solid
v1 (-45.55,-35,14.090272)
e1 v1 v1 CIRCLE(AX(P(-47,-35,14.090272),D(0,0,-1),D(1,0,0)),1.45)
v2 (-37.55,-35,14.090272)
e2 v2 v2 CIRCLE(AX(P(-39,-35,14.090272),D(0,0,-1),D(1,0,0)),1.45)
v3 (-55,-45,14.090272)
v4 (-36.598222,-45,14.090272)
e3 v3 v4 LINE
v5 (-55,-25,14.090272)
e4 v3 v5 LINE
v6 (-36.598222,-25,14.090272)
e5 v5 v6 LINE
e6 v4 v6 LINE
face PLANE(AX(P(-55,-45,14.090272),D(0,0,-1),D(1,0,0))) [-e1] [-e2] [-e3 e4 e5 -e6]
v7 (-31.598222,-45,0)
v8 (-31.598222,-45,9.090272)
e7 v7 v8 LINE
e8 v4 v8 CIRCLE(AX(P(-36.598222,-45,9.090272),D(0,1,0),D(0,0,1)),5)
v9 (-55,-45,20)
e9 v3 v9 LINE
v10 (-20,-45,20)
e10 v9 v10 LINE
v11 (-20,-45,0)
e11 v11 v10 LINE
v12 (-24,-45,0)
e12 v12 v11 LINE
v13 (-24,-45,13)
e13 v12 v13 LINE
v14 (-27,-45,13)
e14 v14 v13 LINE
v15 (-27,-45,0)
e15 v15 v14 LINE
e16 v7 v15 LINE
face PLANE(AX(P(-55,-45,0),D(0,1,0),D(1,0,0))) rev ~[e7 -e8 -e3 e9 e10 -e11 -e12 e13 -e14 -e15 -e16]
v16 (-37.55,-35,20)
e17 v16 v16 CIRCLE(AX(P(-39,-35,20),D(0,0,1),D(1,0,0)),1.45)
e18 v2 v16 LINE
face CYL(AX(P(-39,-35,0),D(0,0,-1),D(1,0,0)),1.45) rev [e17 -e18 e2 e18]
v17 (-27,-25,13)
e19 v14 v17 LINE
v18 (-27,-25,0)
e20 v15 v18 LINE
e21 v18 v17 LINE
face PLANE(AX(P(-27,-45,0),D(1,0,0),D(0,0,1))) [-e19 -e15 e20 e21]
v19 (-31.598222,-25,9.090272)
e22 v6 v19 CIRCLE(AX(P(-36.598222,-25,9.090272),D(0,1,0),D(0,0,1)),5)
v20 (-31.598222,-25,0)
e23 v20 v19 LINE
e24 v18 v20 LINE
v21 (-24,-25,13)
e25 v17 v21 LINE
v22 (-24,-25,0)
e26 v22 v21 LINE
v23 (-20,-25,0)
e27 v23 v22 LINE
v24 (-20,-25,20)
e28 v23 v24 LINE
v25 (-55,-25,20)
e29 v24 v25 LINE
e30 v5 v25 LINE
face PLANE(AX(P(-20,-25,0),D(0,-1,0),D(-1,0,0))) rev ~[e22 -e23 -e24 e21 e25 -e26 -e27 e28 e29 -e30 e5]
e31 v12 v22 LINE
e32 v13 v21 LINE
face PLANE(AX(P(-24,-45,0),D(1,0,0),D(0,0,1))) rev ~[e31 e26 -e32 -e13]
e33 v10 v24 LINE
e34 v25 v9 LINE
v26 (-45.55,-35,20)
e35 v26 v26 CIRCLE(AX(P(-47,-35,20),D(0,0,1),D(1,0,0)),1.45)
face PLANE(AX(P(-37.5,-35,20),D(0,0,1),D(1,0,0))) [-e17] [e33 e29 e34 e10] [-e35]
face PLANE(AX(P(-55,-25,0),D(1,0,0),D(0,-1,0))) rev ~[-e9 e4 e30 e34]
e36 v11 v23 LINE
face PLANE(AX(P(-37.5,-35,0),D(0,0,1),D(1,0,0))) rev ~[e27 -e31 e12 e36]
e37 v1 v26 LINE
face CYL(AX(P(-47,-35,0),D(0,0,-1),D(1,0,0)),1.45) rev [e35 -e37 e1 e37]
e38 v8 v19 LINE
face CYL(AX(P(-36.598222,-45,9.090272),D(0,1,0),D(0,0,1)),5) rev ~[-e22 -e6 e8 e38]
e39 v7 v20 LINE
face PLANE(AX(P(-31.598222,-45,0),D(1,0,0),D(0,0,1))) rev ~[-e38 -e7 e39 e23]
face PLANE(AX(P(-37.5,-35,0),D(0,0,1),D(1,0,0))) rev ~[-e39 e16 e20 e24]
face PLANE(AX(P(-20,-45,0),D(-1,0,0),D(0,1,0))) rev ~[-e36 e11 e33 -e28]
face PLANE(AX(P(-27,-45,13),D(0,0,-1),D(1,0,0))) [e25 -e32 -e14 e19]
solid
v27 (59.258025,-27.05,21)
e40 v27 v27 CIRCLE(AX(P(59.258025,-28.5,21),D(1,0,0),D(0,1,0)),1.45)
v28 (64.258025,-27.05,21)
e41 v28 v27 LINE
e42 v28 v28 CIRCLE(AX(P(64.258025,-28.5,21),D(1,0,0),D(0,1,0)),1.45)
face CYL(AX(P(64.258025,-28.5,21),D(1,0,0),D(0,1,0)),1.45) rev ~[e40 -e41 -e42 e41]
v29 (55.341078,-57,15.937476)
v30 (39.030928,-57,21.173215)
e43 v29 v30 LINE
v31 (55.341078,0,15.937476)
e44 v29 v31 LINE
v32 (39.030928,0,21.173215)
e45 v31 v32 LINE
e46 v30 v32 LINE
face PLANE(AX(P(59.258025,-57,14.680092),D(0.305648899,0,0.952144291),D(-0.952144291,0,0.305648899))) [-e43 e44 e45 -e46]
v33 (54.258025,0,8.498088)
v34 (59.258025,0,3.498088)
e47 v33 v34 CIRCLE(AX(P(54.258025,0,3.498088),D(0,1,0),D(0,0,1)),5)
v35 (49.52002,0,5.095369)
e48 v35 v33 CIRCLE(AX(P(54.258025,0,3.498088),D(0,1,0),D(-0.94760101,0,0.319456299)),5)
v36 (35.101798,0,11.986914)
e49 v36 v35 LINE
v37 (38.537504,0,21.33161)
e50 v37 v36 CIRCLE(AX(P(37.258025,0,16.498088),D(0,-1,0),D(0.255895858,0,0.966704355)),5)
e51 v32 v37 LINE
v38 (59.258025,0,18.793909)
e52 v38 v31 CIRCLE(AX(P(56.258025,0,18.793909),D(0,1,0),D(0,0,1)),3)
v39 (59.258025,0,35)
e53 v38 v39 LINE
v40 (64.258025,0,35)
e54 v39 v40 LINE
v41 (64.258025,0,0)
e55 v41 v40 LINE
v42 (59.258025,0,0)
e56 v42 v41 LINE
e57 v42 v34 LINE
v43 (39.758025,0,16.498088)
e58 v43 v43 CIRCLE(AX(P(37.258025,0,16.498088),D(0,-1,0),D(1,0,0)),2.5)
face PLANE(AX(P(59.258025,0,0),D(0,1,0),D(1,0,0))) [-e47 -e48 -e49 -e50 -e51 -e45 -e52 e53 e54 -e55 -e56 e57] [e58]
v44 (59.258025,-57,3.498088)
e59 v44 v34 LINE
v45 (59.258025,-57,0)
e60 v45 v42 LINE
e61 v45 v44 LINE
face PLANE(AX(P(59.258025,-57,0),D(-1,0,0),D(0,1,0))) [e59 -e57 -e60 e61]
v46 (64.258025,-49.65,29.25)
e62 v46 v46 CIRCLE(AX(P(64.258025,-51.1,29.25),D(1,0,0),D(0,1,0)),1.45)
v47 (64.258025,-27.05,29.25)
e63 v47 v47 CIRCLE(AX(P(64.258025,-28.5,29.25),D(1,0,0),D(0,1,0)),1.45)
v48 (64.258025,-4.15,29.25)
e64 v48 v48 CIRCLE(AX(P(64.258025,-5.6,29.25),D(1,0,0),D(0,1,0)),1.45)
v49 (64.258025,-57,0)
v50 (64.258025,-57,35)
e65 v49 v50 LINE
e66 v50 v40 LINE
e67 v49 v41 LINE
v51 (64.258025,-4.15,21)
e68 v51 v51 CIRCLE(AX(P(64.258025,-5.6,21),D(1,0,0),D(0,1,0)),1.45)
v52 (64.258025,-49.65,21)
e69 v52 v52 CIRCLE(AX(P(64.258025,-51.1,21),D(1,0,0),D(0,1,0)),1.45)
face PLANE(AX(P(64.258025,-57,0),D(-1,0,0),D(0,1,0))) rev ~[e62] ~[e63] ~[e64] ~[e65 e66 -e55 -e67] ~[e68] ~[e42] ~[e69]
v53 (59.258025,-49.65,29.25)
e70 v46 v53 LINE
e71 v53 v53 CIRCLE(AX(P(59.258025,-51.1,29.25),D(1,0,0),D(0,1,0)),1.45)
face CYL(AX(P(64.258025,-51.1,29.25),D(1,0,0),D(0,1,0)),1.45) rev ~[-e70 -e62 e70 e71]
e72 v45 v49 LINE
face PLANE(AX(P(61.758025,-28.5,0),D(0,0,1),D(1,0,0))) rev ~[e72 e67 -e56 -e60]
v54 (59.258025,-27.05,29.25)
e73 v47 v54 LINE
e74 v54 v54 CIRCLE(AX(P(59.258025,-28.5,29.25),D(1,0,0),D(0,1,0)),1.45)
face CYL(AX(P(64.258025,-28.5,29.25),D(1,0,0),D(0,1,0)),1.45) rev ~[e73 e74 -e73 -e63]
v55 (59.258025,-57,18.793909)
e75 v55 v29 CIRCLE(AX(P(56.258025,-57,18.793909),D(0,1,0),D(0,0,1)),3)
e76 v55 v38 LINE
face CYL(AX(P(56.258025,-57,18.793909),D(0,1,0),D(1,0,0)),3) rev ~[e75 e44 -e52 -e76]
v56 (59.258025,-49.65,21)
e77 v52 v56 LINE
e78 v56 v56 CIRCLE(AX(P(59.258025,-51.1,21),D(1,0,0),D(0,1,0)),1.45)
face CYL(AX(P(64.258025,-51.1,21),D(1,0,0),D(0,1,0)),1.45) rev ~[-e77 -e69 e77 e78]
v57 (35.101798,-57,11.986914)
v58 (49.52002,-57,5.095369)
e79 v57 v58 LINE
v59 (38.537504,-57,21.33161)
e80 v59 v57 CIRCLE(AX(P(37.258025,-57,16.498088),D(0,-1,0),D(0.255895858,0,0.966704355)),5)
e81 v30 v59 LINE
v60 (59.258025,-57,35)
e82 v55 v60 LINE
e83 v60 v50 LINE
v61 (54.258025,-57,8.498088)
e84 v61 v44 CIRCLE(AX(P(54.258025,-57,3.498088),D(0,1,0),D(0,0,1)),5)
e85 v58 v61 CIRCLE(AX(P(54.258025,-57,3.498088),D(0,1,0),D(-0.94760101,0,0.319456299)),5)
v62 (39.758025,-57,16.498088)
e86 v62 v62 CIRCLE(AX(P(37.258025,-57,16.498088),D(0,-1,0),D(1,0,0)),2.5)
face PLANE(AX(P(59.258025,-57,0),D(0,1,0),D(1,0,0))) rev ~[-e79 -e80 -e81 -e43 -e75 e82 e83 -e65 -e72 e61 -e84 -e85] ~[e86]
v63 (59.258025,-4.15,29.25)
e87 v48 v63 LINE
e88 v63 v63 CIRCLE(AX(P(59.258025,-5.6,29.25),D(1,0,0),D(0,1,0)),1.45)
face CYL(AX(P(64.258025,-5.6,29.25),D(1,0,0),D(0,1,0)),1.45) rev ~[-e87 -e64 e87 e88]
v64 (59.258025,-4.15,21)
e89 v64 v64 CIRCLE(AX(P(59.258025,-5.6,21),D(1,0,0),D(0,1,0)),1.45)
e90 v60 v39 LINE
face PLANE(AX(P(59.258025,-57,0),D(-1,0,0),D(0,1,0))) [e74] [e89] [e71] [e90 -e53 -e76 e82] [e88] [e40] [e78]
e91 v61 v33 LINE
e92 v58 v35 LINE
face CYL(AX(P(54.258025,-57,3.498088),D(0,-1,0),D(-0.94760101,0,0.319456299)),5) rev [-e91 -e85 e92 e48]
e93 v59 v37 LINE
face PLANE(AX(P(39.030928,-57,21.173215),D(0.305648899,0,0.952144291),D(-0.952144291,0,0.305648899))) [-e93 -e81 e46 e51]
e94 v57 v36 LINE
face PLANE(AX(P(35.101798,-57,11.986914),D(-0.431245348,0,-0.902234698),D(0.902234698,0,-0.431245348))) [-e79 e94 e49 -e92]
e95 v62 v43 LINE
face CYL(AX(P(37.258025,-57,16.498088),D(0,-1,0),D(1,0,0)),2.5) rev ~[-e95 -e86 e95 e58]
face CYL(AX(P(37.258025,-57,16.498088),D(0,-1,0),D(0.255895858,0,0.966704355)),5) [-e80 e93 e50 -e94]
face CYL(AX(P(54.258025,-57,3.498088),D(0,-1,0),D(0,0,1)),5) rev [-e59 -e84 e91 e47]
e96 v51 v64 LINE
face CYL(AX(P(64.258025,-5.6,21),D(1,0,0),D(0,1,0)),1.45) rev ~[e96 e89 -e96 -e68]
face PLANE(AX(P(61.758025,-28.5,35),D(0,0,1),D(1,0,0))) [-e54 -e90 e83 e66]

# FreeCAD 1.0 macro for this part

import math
import FreeCAD as App
import Part
import Sketcher

V = App.Vector


def edges_at(feature, points):
    """Names of the edges that pass closest to the given points."""
    edges = feature.Shape.Edges
    near = lambda p: min(range(len(edges)), key=lambda i: edges[i].distToShape(Part.Vertex(*p))[0])
    return sorted({f"Edge{near(p) + 1}" for p in points})

doc = App.newDocument("Part")
body = doc.addObject("PartDesign::Body", "Body")

sketch1 = doc.addObject("Sketcher::SketchObject", "Sketch")
body.addObject(sketch1)
sketch1.AttachmentSupport = (doc.XY_Plane, [""])
sketch1.MapMode = "FlatFace"
sketch1.addGeometry(Part.LineSegment(V(-55, -25, 0), V(-55, -45, 0)), False)
sketch1.addGeometry(Part.LineSegment(V(-55, -45, 0), V(-20, -45, 0)), False)
sketch1.addGeometry(Part.LineSegment(V(-20, -45, 0), V(-20, -25, 0)), False)
sketch1.addGeometry(Part.LineSegment(V(-20, -25, 0), V(-55, -25, 0)), False)
sketch1.addGeometry(Part.Circle(V(-47, -35, 0), V(0, 0, 1), 1.4), False)
sketch1.addGeometry(Part.Circle(V(-39, -35, 0), V(0, 0, 1), 1.4), False)
sketch1.addConstraint(Sketcher.Constraint("Coincident", 0, 2, 1, 1))
sketch1.addConstraint(Sketcher.Constraint("Coincident", 1, 2, 2, 1))
sketch1.addConstraint(Sketcher.Constraint("Coincident", 2, 2, 3, 1))
sketch1.addConstraint(Sketcher.Constraint("Coincident", 3, 2, 0, 1))
sketch1.addConstraint(Sketcher.Constraint("Vertical", 0))
sketch1.addConstraint(Sketcher.Constraint("Horizontal", 1))
sketch1.addConstraint(Sketcher.Constraint("Vertical", 2))
sketch1.addConstraint(Sketcher.Constraint("Horizontal", 3))
sketch1.addConstraint(Sketcher.Constraint("Equal", 4, 5))
sketch1.addConstraint(Sketcher.Constraint("Horizontal", 4, 3, 5, 3))
sketch1.addConstraint(Sketcher.Constraint("Diameter", 4, 2.9))
sketch1.addConstraint(Sketcher.Constraint("DistanceX", 1, 1, 1, 2, 35.0))
sketch1.addConstraint(Sketcher.Constraint("DistanceY", 0, 2, 0, 1, 20.0))
sketch1.addConstraint(Sketcher.Constraint("DistanceX", 4, 3, -1, 1, 47.0))
sketch1.addConstraint(Sketcher.Constraint("DistanceY", 4, 3, -1, 1, 35.0))
sketch1.addConstraint(Sketcher.Constraint("DistanceX", 5, 3, -1, 1, 39.0))
sketch1.addConstraint(Sketcher.Constraint("DistanceX", 0, 2, -1, 1, 55.0))
sketch1.addConstraint(Sketcher.Constraint("DistanceY", 0, 2, -1, 1, 45.0))
pad1 = doc.addObject("PartDesign::Pad", "Pad")
body.addObject(pad1)
pad1.Profile = sketch1
pad1.Length = 20

sketch2 = doc.addObject("Sketcher::SketchObject", "Sketch001")
body.addObject(sketch2)
sketch2.AttachmentSupport = (doc.XZ_Plane, [""])
sketch2.MapMode = "FlatFace"
sketch2.AttachmentOffset = App.Placement(V(0, 0, 45), App.Rotation())
sketch2.addGeometry(Part.LineSegment(V(-27, 13, 0), V(-27, 0, 0)), False)
sketch2.addGeometry(Part.LineSegment(V(-27, 0, 0), V(-24, 0, 0)), False)
sketch2.addGeometry(Part.LineSegment(V(-24, 0, 0), V(-24, 13, 0)), False)
sketch2.addGeometry(Part.LineSegment(V(-24, 13, 0), V(-27, 13, 0)), False)
sketch2.addGeometry(Part.LineSegment(V(-55, 14.1, 0), V(-55, 0, 0)), False)
sketch2.addGeometry(Part.LineSegment(V(-55, 0, 0), V(-31.6, 0, 0)), False)
sketch2.addGeometry(Part.LineSegment(V(-31.6, 0, 0), V(-31.6, 14.1, 0)), False)
sketch2.addGeometry(Part.LineSegment(V(-31.6, 14.1, 0), V(-55, 14.1, 0)), False)
sketch2.addConstraint(Sketcher.Constraint("Coincident", 0, 2, 1, 1))
sketch2.addConstraint(Sketcher.Constraint("Coincident", 1, 2, 2, 1))
sketch2.addConstraint(Sketcher.Constraint("Coincident", 2, 2, 3, 1))
sketch2.addConstraint(Sketcher.Constraint("Coincident", 3, 2, 0, 1))
sketch2.addConstraint(Sketcher.Constraint("Coincident", 4, 2, 5, 1))
sketch2.addConstraint(Sketcher.Constraint("Coincident", 5, 2, 6, 1))
sketch2.addConstraint(Sketcher.Constraint("Coincident", 6, 2, 7, 1))
sketch2.addConstraint(Sketcher.Constraint("Coincident", 7, 2, 4, 1))
sketch2.addConstraint(Sketcher.Constraint("Vertical", 0))
sketch2.addConstraint(Sketcher.Constraint("Horizontal", 1))
sketch2.addConstraint(Sketcher.Constraint("Vertical", 2))
sketch2.addConstraint(Sketcher.Constraint("Horizontal", 3))
sketch2.addConstraint(Sketcher.Constraint("Vertical", 4))
sketch2.addConstraint(Sketcher.Constraint("Horizontal", 5))
sketch2.addConstraint(Sketcher.Constraint("Vertical", 6))
sketch2.addConstraint(Sketcher.Constraint("Horizontal", 7))
sketch2.addConstraint(Sketcher.Constraint("PointOnObject", 0, 2, -1))
sketch2.addConstraint(Sketcher.Constraint("PointOnObject", 4, 2, -1))
sketch2.addConstraint(Sketcher.Constraint("DistanceX", 1, 1, 1, 2, 3.0))
sketch2.addConstraint(Sketcher.Constraint("DistanceY", 0, 2, 0, 1, 13.0))
sketch2.addConstraint(Sketcher.Constraint("DistanceX", 0, 2, -1, 1, 27.0))
sketch2.addConstraint(Sketcher.Constraint("DistanceX", 4, 2, -1, 1, 55.0))
sketch2.addConstraint(Sketcher.Constraint("DistanceX", 5, 1, 5, 2, 23.401778))
sketch2.addConstraint(Sketcher.Constraint("DistanceY", 4, 2, 4, 1, 14.090272))
pocket1 = doc.addObject("PartDesign::Pocket", "Pocket")
body.addObject(pocket1)
pocket1.Profile = sketch2
pocket1.Length = 25
doc.recompute()

fillet = doc.addObject("PartDesign::Fillet", "Fillet")
body.addObject(fillet)
fillet.Base = (pocket1, edges_at(pocket1, [(-31.598, -35, 14.09)]))
fillet.Radius = 5
body2 = doc.addObject("PartDesign::Body", "Body001")

sketch3 = doc.addObject("Sketcher::SketchObject", "Sketch002")
body2.addObject(sketch3)
sketch3.AttachmentSupport = (doc.getObject("XY_Plane001"), [""])
sketch3.MapMode = "FlatFace"
sketch3.addGeometry(Part.LineSegment(V(59, 0, 0), V(59, -57, 0)), False)
sketch3.addGeometry(Part.LineSegment(V(59, -57, 0), V(64, -57, 0)), False)
sketch3.addGeometry(Part.LineSegment(V(64, -57, 0), V(64, 0, 0)), False)
sketch3.addGeometry(Part.LineSegment(V(64, 0, 0), V(59, 0, 0)), False)
sketch3.addConstraint(Sketcher.Constraint("Coincident", 0, 2, 1, 1))
sketch3.addConstraint(Sketcher.Constraint("Coincident", 1, 2, 2, 1))
sketch3.addConstraint(Sketcher.Constraint("Coincident", 2, 2, 3, 1))
sketch3.addConstraint(Sketcher.Constraint("Coincident", 3, 2, 0, 1))
sketch3.addConstraint(Sketcher.Constraint("Vertical", 0))
sketch3.addConstraint(Sketcher.Constraint("Horizontal", 1))
sketch3.addConstraint(Sketcher.Constraint("Vertical", 2))
sketch3.addConstraint(Sketcher.Constraint("Horizontal", 3))
sketch3.addConstraint(Sketcher.Constraint("PointOnObject", 2, 2, -1))
sketch3.addConstraint(Sketcher.Constraint("DistanceX", 1, 1, 1, 2, 5.0))
sketch3.addConstraint(Sketcher.Constraint("DistanceY", 0, 2, 0, 1, 57.0))
sketch3.addConstraint(Sketcher.Constraint("DistanceX", -1, 1, 0, 2, 59.258025))
pad2 = doc.addObject("PartDesign::Pad", "Pad001")
body2.addObject(pad2)
pad2.Profile = sketch3
pad2.Length = 35

sketch4 = doc.addObject("Sketcher::SketchObject", "Sketch003")
body2.addObject(sketch4)
sketch4.AttachmentSupport = (doc.getObject("YZ_Plane001"), [""])
sketch4.MapMode = "FlatFace"
sketch4.AttachmentOffset = App.Placement(V(0, 0, 64.258025), App.Rotation())
sketch4.addGeometry(Part.Circle(V(-28.5, 21, 0), V(0, 0, 1), 1.4), False)
sketch4.addGeometry(Part.Circle(V(-28.5, 29.2, 0), V(0, 0, 1), 1.4), False)
sketch4.addGeometry(Part.Circle(V(-5.6, 29.2, 0), V(0, 0, 1), 1.4), False)
sketch4.addGeometry(Part.Circle(V(-5.6, 21, 0), V(0, 0, 1), 1.4), False)
sketch4.addGeometry(Part.Circle(V(-51.1, 29.2, 0), V(0, 0, 1), 1.4), False)
sketch4.addGeometry(Part.Circle(V(-51.1, 21, 0), V(0, 0, 1), 1.4), False)
sketch4.addConstraint(Sketcher.Constraint("Equal", 0, 1))
sketch4.addConstraint(Sketcher.Constraint("Equal", 1, 2))
sketch4.addConstraint(Sketcher.Constraint("Equal", 2, 3))
sketch4.addConstraint(Sketcher.Constraint("Equal", 3, 4))
sketch4.addConstraint(Sketcher.Constraint("Equal", 4, 5))
sketch4.addConstraint(Sketcher.Constraint("Horizontal", 1, 3, 2, 3))
sketch4.addConstraint(Sketcher.Constraint("Horizontal", 0, 3, 3, 3))
sketch4.addConstraint(Sketcher.Constraint("Horizontal", 2, 3, 4, 3))
sketch4.addConstraint(Sketcher.Constraint("Horizontal", 3, 3, 5, 3))
sketch4.addConstraint(Sketcher.Constraint("Vertical", 0, 3, 1, 3))
sketch4.addConstraint(Sketcher.Constraint("Vertical", 2, 3, 3, 3))
sketch4.addConstraint(Sketcher.Constraint("Vertical", 4, 3, 5, 3))
sketch4.addConstraint(Sketcher.Constraint("Diameter", 0, 2.9))
sketch4.addConstraint(Sketcher.Constraint("DistanceY", -1, 1, 0, 3, 21.0))
sketch4.addConstraint(Sketcher.Constraint("DistanceX", 0, 3, -1, 1, 28.5))
sketch4.addConstraint(Sketcher.Constraint("DistanceX", 2, 3, -1, 1, 5.6))
sketch4.addConstraint(Sketcher.Constraint("DistanceX", 4, 3, -1, 1, 51.1))
sketch4.addConstraint(Sketcher.Constraint("DistanceY", -1, 1, 1, 3, 29.25))
pocket2 = doc.addObject("PartDesign::Pocket", "Pocket001")
body2.addObject(pocket2)
pocket2.Profile = sketch4
pocket2.Length = 25

sketch5 = doc.addObject("Sketcher::SketchObject", "Sketch004")
body2.addObject(sketch5)
sketch5.AttachmentSupport = (doc.getObject("XZ_Plane001"), [""])
sketch5.MapMode = "FlatFace"
sketch5.AttachmentOffset = App.Placement(V(0, 0, 57), App.Rotation())
sketch5.addGeometry(Part.ArcOfCircle(Part.Circle(V(54.3, 3.5, 0), V(0, 0, 1), 5), math.radians(90), math.radians(161)), False)
sketch5.addGeometry(Part.ArcOfCircle(Part.Circle(V(54.3, 3.5, 0), V(0, 0, 1), 5), math.radians(0), math.radians(90)), False)
sketch5.addGeometry(Part.LineSegment(V(59.3, 3.5, 0), V(59.3, 14.7, 0)), False)
sketch5.addGeometry(Part.LineSegment(V(59.3, 14.7, 0), V(39, 21.2, 0)), False)
sketch5.addGeometry(Part.LineSegment(V(39, 21.2, 0), V(38.5, 21.3, 0)), False)
sketch5.addGeometry(Part.ArcOfCircle(Part.Circle(V(37.3, 16.5, 0), V(0, 0, 1), 5), math.radians(75), math.radians(244)), False)
sketch5.addGeometry(Part.LineSegment(V(35.1, 12, 0), V(49.5, 5.1, 0)), False)
sketch5.addGeometry(Part.Circle(V(37.3, 16.5, 0), V(0, 0, 1), 2.5), False)
sketch5.addConstraint(Sketcher.Constraint("Tangent", 0, 1, 1, 2))
sketch5.addConstraint(Sketcher.Constraint("Tangent", 1, 1, 2, 1))
sketch5.addConstraint(Sketcher.Constraint("Coincident", 2, 2, 3, 1))
sketch5.addConstraint(Sketcher.Constraint("Coincident", 3, 2, 4, 1))
sketch5.addConstraint(Sketcher.Constraint("Coincident", 4, 2, 5, 1))
sketch5.addConstraint(Sketcher.Constraint("Tangent", 5, 2, 6, 1))
sketch5.addConstraint(Sketcher.Constraint("Coincident", 6, 2, 0, 2))
sketch5.addConstraint(Sketcher.Constraint("Vertical", 2))
sketch5.addConstraint(Sketcher.Constraint("Coincident", 7, 3, 5, 3))
sketch5.addConstraint(Sketcher.Constraint("Equal", 0, 1))
sketch5.addConstraint(Sketcher.Constraint("Equal", 1, 5))
sketch5.addConstraint(Sketcher.Constraint("Parallel", 3, 4))
sketch5.addConstraint(Sketcher.Constraint("Vertical", 1, 3, 0, 1))
sketch5.addConstraint(Sketcher.Constraint("Diameter", 7, 5.0))
sketch5.addConstraint(Sketcher.Constraint("Radius", 0, 5.0))
sketch5.addConstraint(Sketcher.Constraint("DistanceX", 5, 3, 1, 3, 17.0))
sketch5.addConstraint(Sketcher.Constraint("DistanceY", 1, 3, 5, 3, 13.0))
sketch5.addConstraint(Sketcher.Constraint("DistanceX", -1, 1, 5, 2, 35.101798))
sketch5.addConstraint(Sketcher.Constraint("DistanceY", 5, 2, 3, 2, 9.186301))
sketch5.addConstraint(Sketcher.Constraint("Distance", 3, 21.243731))
sketch5.addConstraint(Sketcher.Constraint("DistanceY", 2, 1, 2, 2, 11.182004))
sketch5.addConstraint(Sketcher.Constraint("DistanceY", -1, 1, 4, 2, 21.33161))
sketch5.addConstraint(Sketcher.Constraint("DistanceX", -1, 1, 6, 2, 49.52002))
pad3 = doc.addObject("PartDesign::Pad", "Pad002")
body2.addObject(pad3)
pad3.Profile = sketch5
pad3.Length = 57
pad3.Reversed = True
doc.recompute()

fillet2 = doc.addObject("PartDesign::Fillet", "Fillet001")
body2.addObject(fillet2)
fillet2.Base = (pad3, edges_at(pad3, [(59.258, -28.5, 14.68)]))
fillet2.Radius = 3

doc.recompute()
